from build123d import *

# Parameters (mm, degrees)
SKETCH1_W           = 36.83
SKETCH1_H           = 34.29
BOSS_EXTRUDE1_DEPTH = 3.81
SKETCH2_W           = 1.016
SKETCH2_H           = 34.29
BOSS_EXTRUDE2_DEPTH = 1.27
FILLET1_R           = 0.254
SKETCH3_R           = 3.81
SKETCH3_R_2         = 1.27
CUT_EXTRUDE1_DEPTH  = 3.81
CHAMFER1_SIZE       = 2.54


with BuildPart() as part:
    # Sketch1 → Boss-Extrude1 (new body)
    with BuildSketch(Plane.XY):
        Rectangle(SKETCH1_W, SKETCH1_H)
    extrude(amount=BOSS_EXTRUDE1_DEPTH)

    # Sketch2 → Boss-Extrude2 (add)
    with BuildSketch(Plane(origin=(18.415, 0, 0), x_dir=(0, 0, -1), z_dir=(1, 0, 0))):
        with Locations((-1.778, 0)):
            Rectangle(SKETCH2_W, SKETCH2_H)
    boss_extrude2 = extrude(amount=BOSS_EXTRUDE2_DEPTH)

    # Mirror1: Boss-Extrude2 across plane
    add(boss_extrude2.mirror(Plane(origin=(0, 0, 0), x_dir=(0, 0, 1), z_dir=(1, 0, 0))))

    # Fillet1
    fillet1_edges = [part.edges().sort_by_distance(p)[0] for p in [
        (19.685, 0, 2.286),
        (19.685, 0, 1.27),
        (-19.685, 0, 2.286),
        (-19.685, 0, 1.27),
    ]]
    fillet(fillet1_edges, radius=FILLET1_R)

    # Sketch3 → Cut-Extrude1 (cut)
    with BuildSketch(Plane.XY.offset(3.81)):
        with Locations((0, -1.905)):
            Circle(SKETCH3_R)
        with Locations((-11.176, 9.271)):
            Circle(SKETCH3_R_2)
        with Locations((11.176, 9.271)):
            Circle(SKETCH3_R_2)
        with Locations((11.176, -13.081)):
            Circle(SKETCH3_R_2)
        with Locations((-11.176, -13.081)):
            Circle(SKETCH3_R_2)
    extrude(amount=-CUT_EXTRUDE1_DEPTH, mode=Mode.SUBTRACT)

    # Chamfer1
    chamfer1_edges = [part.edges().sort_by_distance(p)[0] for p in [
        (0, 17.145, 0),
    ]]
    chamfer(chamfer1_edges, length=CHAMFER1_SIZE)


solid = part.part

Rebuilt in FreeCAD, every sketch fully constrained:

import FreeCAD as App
import Part
import Sketcher

V = App.Vector
Q = App.Units.Quantity


def edges_at(feature, points):
    """Names of the edges that pass closest to the given points."""
    edges = feature.Shape.Edges
    near = lambda p: min(range(len(edges)), key=lambda i: edges[i].distToShape(Part.Vertex(*p))[0])
    return sorted({f"Edge{near(p) + 1}" for p in points})

doc = App.newDocument("Part")
body = doc.addObject("PartDesign::Body", "Body")

sketch1 = body.newObject("Sketcher::SketchObject", "Sketch")
sketch1.AttachmentSupport = (doc.getObject("XY_Plane"), [""])
sketch1.MapMode = "FlatFace"
sketch1.addGeometry(Part.LineSegment(V(-18.415, 17.145, 0), V(-18.415, -17.145, 0)), False)
sketch1.addGeometry(Part.LineSegment(V(-18.415, -17.145, 0), V(18.415, -17.145, 0)), False)
sketch1.addGeometry(Part.LineSegment(V(18.415, -17.145, 0), V(18.415, 17.145, 0)), False)
sketch1.addGeometry(Part.LineSegment(V(18.415, 17.145, 0), V(-18.415, 17.145, 0)), False)
sketch1.addConstraint(Sketcher.Constraint("Coincident", 0, 2, 1, 1))
sketch1.addConstraint(Sketcher.Constraint("Coincident", 1, 2, 2, 1))
sketch1.addConstraint(Sketcher.Constraint("Coincident", 2, 2, 3, 1))
sketch1.addConstraint(Sketcher.Constraint("Coincident", 3, 2, 0, 1))
sketch1.addConstraint(Sketcher.Constraint("Vertical", 0))
sketch1.addConstraint(Sketcher.Constraint("Horizontal", 1))
sketch1.addConstraint(Sketcher.Constraint("Vertical", 2))
sketch1.addConstraint(Sketcher.Constraint("Horizontal", 3))
sketch1.addConstraint(Sketcher.Constraint("Symmetric", 0, 2, 2, 2, -1, 1))
sketch1.addConstraint(Sketcher.Constraint("DistanceX", 1, 1, 1, 2, Q("1.45 in")))
sketch1.addConstraint(Sketcher.Constraint("DistanceY", 0, 2, 0, 1, Q("1.35 in")))
pad1 = body.newObject("PartDesign::Pad", "Pad")
pad1.Profile = sketch1
pad1.Length = Q("0.15 in")

sketch2 = body.newObject("Sketcher::SketchObject", "Sketch001")
sketch2.AttachmentSupport = (doc.getObject("YZ_Plane"), [""])
sketch2.MapMode = "FlatFace"
sketch2.AttachmentOffset = App.Placement(V(0, 0, 0.725 * 25.4), App.Rotation())
sketch2.addGeometry(Part.LineSegment(V(17.145, 2.286, 0), V(-17.145, 2.286, 0)), False)
sketch2.addGeometry(Part.LineSegment(V(-17.145, 2.286, 0), V(-17.145, 1.27, 0)), False)
sketch2.addGeometry(Part.LineSegment(V(-17.145, 1.27, 0), V(17.145, 1.27, 0)), False)
sketch2.addGeometry(Part.LineSegment(V(17.145, 1.27, 0), V(17.145, 2.286, 0)), False)
sketch2.addConstraint(Sketcher.Constraint("Coincident", 0, 2, 1, 1))
sketch2.addConstraint(Sketcher.Constraint("Coincident", 1, 2, 2, 1))
sketch2.addConstraint(Sketcher.Constraint("Coincident", 2, 2, 3, 1))
sketch2.addConstraint(Sketcher.Constraint("Coincident", 3, 2, 0, 1))
sketch2.addConstraint(Sketcher.Constraint("Horizontal", 0))
sketch2.addConstraint(Sketcher.Constraint("Vertical", 1))
sketch2.addConstraint(Sketcher.Constraint("Horizontal", 2))
sketch2.addConstraint(Sketcher.Constraint("Vertical", 3))
sketch2.addConstraint(Sketcher.Constraint("DistanceX", 0, 2, 0, 1, Q("1.35 in")))
sketch2.addConstraint(Sketcher.Constraint("DistanceY", 1, 2, 1, 1, Q("0.04 in")))
sketch2.addConstraint(Sketcher.Constraint("DistanceY", -1, 1, 0, 2, Q("0.09 in")))
sketch2.addConstraint(Sketcher.Constraint("DistanceX", 0, 2, -1, 1, Q("0.675 in")))
pad2 = body.newObject("PartDesign::Pad", "Pad001")
pad2.Profile = sketch2
pad2.Length = Q("0.05 in")
doc.recompute()

mirrored = body.newObject("PartDesign::Mirrored", "Mirrored")
mirrored.Originals = [pad2]
mirrored.MirrorPlane = (doc.getObject("YZ_Plane"), [""])
body.Tip = mirrored
doc.recompute()

fillet = body.newObject("PartDesign::Fillet", "Fillet")
fillet.Base = (mirrored, edges_at(mirrored, [
    (19.685, 0, 2.286),
    (19.685, 0, 1.27),
    (-19.685, 0, 2.286),
    (-19.685, 0, 1.27),
]))
fillet.Radius = Q("0.01 in")

sketch3 = body.newObject("Sketcher::SketchObject", "Sketch002")
sketch3.AttachmentSupport = (doc.getObject("XY_Plane"), [""])
sketch3.MapMode = "FlatFace"
sketch3.AttachmentOffset = App.Placement(V(0, 0, 0.15 * 25.4), App.Rotation())
sketch3.addGeometry(Part.Circle(V(0, -1.905, 0), V(0, 0, 1), 3.81), False)
sketch3.addGeometry(Part.Circle(V(-11.176, 9.271, 0), V(0, 0, 1), 1.27), False)
sketch3.addGeometry(Part.Circle(V(11.176, 9.271, 0), V(0, 0, 1), 1.27), False)
sketch3.addGeometry(Part.Circle(V(11.176, -13.081, 0), V(0, 0, 1), 1.27), False)
sketch3.addGeometry(Part.Circle(V(-11.176, -13.081, 0), V(0, 0, 1), 1.27), False)
sketch3.addConstraint(Sketcher.Constraint("Equal", 1, 2))
sketch3.addConstraint(Sketcher.Constraint("Equal", 2, 3))
sketch3.addConstraint(Sketcher.Constraint("Equal", 3, 4))
sketch3.addConstraint(Sketcher.Constraint("Symmetric", 1, 3, 2, 3, -2))
sketch3.addConstraint(Sketcher.Constraint("Symmetric", 3, 3, 4, 3, -2))
sketch3.addConstraint(Sketcher.Constraint("PointOnObject", 0, 3, -2))
sketch3.addConstraint(Sketcher.Constraint("Vertical", 2, 3, 3, 3))
sketch3.addConstraint(Sketcher.Constraint("Diameter", 0, Q("0.3 in")))
sketch3.addConstraint(Sketcher.Constraint("Diameter", 1, Q("0.1 in")))
sketch3.addConstraint(Sketcher.Constraint("DistanceX", 1, 3, -1, 1, Q("0.44 in")))
sketch3.addConstraint(Sketcher.Constraint("DistanceY", 0, 3, 1, 3, Q("0.44 in")))
sketch3.addConstraint(Sketcher.Constraint("DistanceY", 3, 3, 0, 3, Q("0.44 in")))
sketch3.addConstraint(Sketcher.Constraint("DistanceY", 0, 3, -1, 1, Q("0.075 in")))
pocket1 = body.newObject("PartDesign::Pocket", "Pocket")
pocket1.Profile = sketch3
pocket1.Length = Q("0.15 in")
doc.recompute()

chamfer = body.newObject("PartDesign::Chamfer", "Chamfer")
chamfer.Base = (pocket1, edges_at(pocket1, [(0, 17.145, 0)]))
chamfer.Size = Q("0.1 in")

doc.recompute()
